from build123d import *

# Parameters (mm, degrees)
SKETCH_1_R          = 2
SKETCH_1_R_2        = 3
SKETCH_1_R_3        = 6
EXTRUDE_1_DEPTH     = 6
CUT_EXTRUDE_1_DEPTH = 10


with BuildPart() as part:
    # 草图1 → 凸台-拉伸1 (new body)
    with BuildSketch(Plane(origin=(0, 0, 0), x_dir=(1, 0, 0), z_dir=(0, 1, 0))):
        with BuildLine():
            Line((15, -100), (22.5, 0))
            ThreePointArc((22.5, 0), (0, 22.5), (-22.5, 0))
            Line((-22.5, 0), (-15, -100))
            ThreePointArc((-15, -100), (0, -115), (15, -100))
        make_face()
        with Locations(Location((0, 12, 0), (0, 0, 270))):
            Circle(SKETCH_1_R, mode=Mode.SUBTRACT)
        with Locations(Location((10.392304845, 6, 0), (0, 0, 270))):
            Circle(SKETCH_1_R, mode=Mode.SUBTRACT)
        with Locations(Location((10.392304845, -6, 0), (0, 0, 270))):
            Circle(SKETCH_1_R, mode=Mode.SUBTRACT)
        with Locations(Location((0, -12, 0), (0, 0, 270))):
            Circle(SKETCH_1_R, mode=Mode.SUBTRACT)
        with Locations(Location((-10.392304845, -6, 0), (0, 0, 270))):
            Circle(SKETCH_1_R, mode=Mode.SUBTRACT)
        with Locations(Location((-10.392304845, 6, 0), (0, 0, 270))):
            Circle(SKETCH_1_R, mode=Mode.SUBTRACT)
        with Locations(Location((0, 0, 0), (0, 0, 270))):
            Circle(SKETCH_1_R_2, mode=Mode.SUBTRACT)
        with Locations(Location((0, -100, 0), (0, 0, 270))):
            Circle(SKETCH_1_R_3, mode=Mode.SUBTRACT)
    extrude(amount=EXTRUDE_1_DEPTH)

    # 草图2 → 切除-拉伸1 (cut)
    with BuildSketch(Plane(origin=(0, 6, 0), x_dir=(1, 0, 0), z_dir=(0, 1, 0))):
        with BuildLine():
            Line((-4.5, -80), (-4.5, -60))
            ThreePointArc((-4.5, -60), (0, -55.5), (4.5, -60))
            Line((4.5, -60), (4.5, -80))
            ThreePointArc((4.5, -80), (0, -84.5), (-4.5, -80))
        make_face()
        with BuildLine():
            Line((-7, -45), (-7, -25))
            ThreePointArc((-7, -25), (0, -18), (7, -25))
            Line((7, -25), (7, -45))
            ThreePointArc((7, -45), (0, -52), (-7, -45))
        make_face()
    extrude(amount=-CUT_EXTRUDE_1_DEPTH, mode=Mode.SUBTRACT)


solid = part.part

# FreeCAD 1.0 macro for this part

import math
import FreeCAD as App
import Part
import Sketcher

doc = App.newDocument("Part")
body = doc.addObject("PartDesign::Body", "Body")

sketch1 = body.newObject("Sketcher::SketchObject", "Sketch")
sketch1.AttachmentSupport = (doc.getObject("XZ_Plane"), [""])
sketch1.MapMode = "FlatFace"
sketch1.addGeometry([
    Part.LineSegment(App.Vector(15, 100, 0), App.Vector(22.5, 0, 0)),
    Part.ArcOfCircle(Part.Circle(App.Vector(0, 0, 0), App.Vector(0, 0, 1), 22.5), math.radians(180), math.radians(360)),
    Part.LineSegment(App.Vector(-22.5, 0, 0), App.Vector(-15, 100, 0)),
    Part.ArcOfCircle(Part.Circle(App.Vector(0, 100, 0), App.Vector(0, 0, 1), 15), math.radians(0), math.radians(180)),
    Part.Circle(App.Vector(0, 100, 0), App.Vector(0, 0, 1), 6),
    Part.Circle(App.Vector(-10.392305, 6, 0), App.Vector(0, 0, 1), 2),
    Part.Circle(App.Vector(-10.392305, -6, 0), App.Vector(0, 0, 1), 2),
    Part.Circle(App.Vector(0, 12, 0), App.Vector(0, 0, 1), 2),
    Part.Circle(App.Vector(0, 0, 0), App.Vector(0, 0, 1), 3),
    Part.Circle(App.Vector(0, -12, 0), App.Vector(0, 0, 1), 2),
    Part.Circle(App.Vector(10.392305, 6, 0), App.Vector(0, 0, 1), 2),
    Part.Circle(App.Vector(10.392305, -6, 0), App.Vector(0, 0, 1), 2),
], False)
sketch1.addConstraint([
    Sketcher.Constraint("Coincident", 0, 2, 1, 2),
    Sketcher.Constraint("Coincident", 1, 1, 2, 1),
    Sketcher.Constraint("Coincident", 2, 2, 3, 2),
    Sketcher.Constraint("Coincident", 3, 1, 0, 1),
    Sketcher.Constraint("Coincident", 1, 3, -1, 1),
    Sketcher.Constraint("Coincident", 8, 3, -1, 1),
    Sketcher.Constraint("Coincident", 4, 3, 3, 3),
    Sketcher.Constraint("Equal", 5, 6),
    Sketcher.Constraint("Equal", 6, 7),
    Sketcher.Constraint("Equal", 7, 9),
    Sketcher.Constraint("Equal", 9, 10),
    Sketcher.Constraint("Equal", 10, 11),
    Sketcher.Constraint("Symmetric", 7, 3, 9, 3, -1, 1),
    Sketcher.Constraint("Symmetric", 6, 3, 10, 3, -1, 1),
    Sketcher.Constraint("Symmetric", 5, 3, 11, 3, -1, 1),
    Sketcher.Constraint("Symmetric", 5, 3, 10, 3, -2),
    Sketcher.Constraint("Symmetric", 2, 2, 3, 1, -2),
    Sketcher.Constraint("PointOnObject", 7, 3, -2),
    Sketcher.Constraint("PointOnObject", 0, 2, -1),
    Sketcher.Constraint("PointOnObject", 1, 1, -1),
    Sketcher.Constraint("Horizontal", 4, 3, 2, 2),
    Sketcher.Constraint("Diameter", 4, 12.0),
    Sketcher.Constraint("Diameter", 5, 4.0),
    Sketcher.Constraint("Diameter", 8, 6.0),
    Sketcher.Constraint("Radius", 3, 15.0),
    Sketcher.Constraint("Radius", 1, 22.5),
    Sketcher.Constraint("DistanceY", -1, 1, 3, 3, 100.0),
    Sketcher.Constraint("DistanceY", -1, 1, 5, 3, 6.0),
    Sketcher.Constraint("DistanceY", -1, 1, 7, 3, 12.0),
    Sketcher.Constraint("DistanceX", 5, 3, 10, 3, 20.78461),
])
pad1 = body.newObject("PartDesign::Pad", "Pad")
pad1.Profile = sketch1
pad1.Length = 6
pad1.Reversed = True

sketch2 = body.newObject("Sketcher::SketchObject", "Sketch001")
sketch2.AttachmentSupport = (doc.getObject("XZ_Plane"), [""])
sketch2.MapMode = "FlatFace"
sketch2.AttachmentOffset = App.Placement(App.Vector(0, 0, -6), App.Rotation())
sketch2.addGeometry([
    Part.LineSegment(App.Vector(-4.5, 60, 0), App.Vector(-4.5, 80, 0)),
    Part.ArcOfCircle(Part.Circle(App.Vector(0, 80, 0), App.Vector(0, 0, 1), 4.5), math.radians(0), math.radians(180)),
    Part.LineSegment(App.Vector(4.5, 80, 0), App.Vector(4.5, 60, 0)),
    Part.ArcOfCircle(Part.Circle(App.Vector(0, 60, 0), App.Vector(0, 0, 1), 4.5), math.radians(180), math.radians(360)),
    Part.LineSegment(App.Vector(-7, 25, 0), App.Vector(-7, 45, 0)),
    Part.ArcOfCircle(Part.Circle(App.Vector(0, 45, 0), App.Vector(0, 0, 1), 7), math.radians(0), math.radians(180)),
    Part.LineSegment(App.Vector(7, 45, 0), App.Vector(7, 25, 0)),
    Part.ArcOfCircle(Part.Circle(App.Vector(0, 25, 0), App.Vector(0, 0, 1), 7), math.radians(180), math.radians(360)),
], False)
sketch2.addConstraint([
    Sketcher.Constraint("Tangent", 0, 2, 1, 2),
    Sketcher.Constraint("Tangent", 1, 1, 2, 1),
    Sketcher.Constraint("Tangent", 2, 2, 3, 2),
    Sketcher.Constraint("Tangent", 3, 1, 0, 1),
    Sketcher.Constraint("Tangent", 4, 2, 5, 2),
    Sketcher.Constraint("Tangent", 5, 1, 6, 1),
    Sketcher.Constraint("Tangent", 6, 2, 7, 2),
    Sketcher.Constraint("Tangent", 7, 1, 4, 1),
    Sketcher.Constraint("Vertical", 0),
    Sketcher.Constraint("Vertical", 2),
    Sketcher.Constraint("Vertical", 4),
    Sketcher.Constraint("Vertical", 6),
    Sketcher.Constraint("PointOnObject", 1, 3, -2),
    Sketcher.Constraint("PointOnObject", 5, 3, -2),
    Sketcher.Constraint("Equal", 2, 4),
    Sketcher.Constraint("Radius", 5, 7.0),
    Sketcher.Constraint("Radius", 1, 4.5),
    Sketcher.Constraint("DistanceY", 0, 1, 0, 2, 20.0),
    Sketcher.Constraint("DistanceY", -1, 1, 1, 3, 80.0),
    Sketcher.Constraint("DistanceY", -1, 1, 5, 3, 45.0),
])
pocket1 = body.newObject("PartDesign::Pocket", "Pocket")
pocket1.Profile = sketch2
pocket1.Length = 10
pocket1.Reversed = True

doc.recompute()
